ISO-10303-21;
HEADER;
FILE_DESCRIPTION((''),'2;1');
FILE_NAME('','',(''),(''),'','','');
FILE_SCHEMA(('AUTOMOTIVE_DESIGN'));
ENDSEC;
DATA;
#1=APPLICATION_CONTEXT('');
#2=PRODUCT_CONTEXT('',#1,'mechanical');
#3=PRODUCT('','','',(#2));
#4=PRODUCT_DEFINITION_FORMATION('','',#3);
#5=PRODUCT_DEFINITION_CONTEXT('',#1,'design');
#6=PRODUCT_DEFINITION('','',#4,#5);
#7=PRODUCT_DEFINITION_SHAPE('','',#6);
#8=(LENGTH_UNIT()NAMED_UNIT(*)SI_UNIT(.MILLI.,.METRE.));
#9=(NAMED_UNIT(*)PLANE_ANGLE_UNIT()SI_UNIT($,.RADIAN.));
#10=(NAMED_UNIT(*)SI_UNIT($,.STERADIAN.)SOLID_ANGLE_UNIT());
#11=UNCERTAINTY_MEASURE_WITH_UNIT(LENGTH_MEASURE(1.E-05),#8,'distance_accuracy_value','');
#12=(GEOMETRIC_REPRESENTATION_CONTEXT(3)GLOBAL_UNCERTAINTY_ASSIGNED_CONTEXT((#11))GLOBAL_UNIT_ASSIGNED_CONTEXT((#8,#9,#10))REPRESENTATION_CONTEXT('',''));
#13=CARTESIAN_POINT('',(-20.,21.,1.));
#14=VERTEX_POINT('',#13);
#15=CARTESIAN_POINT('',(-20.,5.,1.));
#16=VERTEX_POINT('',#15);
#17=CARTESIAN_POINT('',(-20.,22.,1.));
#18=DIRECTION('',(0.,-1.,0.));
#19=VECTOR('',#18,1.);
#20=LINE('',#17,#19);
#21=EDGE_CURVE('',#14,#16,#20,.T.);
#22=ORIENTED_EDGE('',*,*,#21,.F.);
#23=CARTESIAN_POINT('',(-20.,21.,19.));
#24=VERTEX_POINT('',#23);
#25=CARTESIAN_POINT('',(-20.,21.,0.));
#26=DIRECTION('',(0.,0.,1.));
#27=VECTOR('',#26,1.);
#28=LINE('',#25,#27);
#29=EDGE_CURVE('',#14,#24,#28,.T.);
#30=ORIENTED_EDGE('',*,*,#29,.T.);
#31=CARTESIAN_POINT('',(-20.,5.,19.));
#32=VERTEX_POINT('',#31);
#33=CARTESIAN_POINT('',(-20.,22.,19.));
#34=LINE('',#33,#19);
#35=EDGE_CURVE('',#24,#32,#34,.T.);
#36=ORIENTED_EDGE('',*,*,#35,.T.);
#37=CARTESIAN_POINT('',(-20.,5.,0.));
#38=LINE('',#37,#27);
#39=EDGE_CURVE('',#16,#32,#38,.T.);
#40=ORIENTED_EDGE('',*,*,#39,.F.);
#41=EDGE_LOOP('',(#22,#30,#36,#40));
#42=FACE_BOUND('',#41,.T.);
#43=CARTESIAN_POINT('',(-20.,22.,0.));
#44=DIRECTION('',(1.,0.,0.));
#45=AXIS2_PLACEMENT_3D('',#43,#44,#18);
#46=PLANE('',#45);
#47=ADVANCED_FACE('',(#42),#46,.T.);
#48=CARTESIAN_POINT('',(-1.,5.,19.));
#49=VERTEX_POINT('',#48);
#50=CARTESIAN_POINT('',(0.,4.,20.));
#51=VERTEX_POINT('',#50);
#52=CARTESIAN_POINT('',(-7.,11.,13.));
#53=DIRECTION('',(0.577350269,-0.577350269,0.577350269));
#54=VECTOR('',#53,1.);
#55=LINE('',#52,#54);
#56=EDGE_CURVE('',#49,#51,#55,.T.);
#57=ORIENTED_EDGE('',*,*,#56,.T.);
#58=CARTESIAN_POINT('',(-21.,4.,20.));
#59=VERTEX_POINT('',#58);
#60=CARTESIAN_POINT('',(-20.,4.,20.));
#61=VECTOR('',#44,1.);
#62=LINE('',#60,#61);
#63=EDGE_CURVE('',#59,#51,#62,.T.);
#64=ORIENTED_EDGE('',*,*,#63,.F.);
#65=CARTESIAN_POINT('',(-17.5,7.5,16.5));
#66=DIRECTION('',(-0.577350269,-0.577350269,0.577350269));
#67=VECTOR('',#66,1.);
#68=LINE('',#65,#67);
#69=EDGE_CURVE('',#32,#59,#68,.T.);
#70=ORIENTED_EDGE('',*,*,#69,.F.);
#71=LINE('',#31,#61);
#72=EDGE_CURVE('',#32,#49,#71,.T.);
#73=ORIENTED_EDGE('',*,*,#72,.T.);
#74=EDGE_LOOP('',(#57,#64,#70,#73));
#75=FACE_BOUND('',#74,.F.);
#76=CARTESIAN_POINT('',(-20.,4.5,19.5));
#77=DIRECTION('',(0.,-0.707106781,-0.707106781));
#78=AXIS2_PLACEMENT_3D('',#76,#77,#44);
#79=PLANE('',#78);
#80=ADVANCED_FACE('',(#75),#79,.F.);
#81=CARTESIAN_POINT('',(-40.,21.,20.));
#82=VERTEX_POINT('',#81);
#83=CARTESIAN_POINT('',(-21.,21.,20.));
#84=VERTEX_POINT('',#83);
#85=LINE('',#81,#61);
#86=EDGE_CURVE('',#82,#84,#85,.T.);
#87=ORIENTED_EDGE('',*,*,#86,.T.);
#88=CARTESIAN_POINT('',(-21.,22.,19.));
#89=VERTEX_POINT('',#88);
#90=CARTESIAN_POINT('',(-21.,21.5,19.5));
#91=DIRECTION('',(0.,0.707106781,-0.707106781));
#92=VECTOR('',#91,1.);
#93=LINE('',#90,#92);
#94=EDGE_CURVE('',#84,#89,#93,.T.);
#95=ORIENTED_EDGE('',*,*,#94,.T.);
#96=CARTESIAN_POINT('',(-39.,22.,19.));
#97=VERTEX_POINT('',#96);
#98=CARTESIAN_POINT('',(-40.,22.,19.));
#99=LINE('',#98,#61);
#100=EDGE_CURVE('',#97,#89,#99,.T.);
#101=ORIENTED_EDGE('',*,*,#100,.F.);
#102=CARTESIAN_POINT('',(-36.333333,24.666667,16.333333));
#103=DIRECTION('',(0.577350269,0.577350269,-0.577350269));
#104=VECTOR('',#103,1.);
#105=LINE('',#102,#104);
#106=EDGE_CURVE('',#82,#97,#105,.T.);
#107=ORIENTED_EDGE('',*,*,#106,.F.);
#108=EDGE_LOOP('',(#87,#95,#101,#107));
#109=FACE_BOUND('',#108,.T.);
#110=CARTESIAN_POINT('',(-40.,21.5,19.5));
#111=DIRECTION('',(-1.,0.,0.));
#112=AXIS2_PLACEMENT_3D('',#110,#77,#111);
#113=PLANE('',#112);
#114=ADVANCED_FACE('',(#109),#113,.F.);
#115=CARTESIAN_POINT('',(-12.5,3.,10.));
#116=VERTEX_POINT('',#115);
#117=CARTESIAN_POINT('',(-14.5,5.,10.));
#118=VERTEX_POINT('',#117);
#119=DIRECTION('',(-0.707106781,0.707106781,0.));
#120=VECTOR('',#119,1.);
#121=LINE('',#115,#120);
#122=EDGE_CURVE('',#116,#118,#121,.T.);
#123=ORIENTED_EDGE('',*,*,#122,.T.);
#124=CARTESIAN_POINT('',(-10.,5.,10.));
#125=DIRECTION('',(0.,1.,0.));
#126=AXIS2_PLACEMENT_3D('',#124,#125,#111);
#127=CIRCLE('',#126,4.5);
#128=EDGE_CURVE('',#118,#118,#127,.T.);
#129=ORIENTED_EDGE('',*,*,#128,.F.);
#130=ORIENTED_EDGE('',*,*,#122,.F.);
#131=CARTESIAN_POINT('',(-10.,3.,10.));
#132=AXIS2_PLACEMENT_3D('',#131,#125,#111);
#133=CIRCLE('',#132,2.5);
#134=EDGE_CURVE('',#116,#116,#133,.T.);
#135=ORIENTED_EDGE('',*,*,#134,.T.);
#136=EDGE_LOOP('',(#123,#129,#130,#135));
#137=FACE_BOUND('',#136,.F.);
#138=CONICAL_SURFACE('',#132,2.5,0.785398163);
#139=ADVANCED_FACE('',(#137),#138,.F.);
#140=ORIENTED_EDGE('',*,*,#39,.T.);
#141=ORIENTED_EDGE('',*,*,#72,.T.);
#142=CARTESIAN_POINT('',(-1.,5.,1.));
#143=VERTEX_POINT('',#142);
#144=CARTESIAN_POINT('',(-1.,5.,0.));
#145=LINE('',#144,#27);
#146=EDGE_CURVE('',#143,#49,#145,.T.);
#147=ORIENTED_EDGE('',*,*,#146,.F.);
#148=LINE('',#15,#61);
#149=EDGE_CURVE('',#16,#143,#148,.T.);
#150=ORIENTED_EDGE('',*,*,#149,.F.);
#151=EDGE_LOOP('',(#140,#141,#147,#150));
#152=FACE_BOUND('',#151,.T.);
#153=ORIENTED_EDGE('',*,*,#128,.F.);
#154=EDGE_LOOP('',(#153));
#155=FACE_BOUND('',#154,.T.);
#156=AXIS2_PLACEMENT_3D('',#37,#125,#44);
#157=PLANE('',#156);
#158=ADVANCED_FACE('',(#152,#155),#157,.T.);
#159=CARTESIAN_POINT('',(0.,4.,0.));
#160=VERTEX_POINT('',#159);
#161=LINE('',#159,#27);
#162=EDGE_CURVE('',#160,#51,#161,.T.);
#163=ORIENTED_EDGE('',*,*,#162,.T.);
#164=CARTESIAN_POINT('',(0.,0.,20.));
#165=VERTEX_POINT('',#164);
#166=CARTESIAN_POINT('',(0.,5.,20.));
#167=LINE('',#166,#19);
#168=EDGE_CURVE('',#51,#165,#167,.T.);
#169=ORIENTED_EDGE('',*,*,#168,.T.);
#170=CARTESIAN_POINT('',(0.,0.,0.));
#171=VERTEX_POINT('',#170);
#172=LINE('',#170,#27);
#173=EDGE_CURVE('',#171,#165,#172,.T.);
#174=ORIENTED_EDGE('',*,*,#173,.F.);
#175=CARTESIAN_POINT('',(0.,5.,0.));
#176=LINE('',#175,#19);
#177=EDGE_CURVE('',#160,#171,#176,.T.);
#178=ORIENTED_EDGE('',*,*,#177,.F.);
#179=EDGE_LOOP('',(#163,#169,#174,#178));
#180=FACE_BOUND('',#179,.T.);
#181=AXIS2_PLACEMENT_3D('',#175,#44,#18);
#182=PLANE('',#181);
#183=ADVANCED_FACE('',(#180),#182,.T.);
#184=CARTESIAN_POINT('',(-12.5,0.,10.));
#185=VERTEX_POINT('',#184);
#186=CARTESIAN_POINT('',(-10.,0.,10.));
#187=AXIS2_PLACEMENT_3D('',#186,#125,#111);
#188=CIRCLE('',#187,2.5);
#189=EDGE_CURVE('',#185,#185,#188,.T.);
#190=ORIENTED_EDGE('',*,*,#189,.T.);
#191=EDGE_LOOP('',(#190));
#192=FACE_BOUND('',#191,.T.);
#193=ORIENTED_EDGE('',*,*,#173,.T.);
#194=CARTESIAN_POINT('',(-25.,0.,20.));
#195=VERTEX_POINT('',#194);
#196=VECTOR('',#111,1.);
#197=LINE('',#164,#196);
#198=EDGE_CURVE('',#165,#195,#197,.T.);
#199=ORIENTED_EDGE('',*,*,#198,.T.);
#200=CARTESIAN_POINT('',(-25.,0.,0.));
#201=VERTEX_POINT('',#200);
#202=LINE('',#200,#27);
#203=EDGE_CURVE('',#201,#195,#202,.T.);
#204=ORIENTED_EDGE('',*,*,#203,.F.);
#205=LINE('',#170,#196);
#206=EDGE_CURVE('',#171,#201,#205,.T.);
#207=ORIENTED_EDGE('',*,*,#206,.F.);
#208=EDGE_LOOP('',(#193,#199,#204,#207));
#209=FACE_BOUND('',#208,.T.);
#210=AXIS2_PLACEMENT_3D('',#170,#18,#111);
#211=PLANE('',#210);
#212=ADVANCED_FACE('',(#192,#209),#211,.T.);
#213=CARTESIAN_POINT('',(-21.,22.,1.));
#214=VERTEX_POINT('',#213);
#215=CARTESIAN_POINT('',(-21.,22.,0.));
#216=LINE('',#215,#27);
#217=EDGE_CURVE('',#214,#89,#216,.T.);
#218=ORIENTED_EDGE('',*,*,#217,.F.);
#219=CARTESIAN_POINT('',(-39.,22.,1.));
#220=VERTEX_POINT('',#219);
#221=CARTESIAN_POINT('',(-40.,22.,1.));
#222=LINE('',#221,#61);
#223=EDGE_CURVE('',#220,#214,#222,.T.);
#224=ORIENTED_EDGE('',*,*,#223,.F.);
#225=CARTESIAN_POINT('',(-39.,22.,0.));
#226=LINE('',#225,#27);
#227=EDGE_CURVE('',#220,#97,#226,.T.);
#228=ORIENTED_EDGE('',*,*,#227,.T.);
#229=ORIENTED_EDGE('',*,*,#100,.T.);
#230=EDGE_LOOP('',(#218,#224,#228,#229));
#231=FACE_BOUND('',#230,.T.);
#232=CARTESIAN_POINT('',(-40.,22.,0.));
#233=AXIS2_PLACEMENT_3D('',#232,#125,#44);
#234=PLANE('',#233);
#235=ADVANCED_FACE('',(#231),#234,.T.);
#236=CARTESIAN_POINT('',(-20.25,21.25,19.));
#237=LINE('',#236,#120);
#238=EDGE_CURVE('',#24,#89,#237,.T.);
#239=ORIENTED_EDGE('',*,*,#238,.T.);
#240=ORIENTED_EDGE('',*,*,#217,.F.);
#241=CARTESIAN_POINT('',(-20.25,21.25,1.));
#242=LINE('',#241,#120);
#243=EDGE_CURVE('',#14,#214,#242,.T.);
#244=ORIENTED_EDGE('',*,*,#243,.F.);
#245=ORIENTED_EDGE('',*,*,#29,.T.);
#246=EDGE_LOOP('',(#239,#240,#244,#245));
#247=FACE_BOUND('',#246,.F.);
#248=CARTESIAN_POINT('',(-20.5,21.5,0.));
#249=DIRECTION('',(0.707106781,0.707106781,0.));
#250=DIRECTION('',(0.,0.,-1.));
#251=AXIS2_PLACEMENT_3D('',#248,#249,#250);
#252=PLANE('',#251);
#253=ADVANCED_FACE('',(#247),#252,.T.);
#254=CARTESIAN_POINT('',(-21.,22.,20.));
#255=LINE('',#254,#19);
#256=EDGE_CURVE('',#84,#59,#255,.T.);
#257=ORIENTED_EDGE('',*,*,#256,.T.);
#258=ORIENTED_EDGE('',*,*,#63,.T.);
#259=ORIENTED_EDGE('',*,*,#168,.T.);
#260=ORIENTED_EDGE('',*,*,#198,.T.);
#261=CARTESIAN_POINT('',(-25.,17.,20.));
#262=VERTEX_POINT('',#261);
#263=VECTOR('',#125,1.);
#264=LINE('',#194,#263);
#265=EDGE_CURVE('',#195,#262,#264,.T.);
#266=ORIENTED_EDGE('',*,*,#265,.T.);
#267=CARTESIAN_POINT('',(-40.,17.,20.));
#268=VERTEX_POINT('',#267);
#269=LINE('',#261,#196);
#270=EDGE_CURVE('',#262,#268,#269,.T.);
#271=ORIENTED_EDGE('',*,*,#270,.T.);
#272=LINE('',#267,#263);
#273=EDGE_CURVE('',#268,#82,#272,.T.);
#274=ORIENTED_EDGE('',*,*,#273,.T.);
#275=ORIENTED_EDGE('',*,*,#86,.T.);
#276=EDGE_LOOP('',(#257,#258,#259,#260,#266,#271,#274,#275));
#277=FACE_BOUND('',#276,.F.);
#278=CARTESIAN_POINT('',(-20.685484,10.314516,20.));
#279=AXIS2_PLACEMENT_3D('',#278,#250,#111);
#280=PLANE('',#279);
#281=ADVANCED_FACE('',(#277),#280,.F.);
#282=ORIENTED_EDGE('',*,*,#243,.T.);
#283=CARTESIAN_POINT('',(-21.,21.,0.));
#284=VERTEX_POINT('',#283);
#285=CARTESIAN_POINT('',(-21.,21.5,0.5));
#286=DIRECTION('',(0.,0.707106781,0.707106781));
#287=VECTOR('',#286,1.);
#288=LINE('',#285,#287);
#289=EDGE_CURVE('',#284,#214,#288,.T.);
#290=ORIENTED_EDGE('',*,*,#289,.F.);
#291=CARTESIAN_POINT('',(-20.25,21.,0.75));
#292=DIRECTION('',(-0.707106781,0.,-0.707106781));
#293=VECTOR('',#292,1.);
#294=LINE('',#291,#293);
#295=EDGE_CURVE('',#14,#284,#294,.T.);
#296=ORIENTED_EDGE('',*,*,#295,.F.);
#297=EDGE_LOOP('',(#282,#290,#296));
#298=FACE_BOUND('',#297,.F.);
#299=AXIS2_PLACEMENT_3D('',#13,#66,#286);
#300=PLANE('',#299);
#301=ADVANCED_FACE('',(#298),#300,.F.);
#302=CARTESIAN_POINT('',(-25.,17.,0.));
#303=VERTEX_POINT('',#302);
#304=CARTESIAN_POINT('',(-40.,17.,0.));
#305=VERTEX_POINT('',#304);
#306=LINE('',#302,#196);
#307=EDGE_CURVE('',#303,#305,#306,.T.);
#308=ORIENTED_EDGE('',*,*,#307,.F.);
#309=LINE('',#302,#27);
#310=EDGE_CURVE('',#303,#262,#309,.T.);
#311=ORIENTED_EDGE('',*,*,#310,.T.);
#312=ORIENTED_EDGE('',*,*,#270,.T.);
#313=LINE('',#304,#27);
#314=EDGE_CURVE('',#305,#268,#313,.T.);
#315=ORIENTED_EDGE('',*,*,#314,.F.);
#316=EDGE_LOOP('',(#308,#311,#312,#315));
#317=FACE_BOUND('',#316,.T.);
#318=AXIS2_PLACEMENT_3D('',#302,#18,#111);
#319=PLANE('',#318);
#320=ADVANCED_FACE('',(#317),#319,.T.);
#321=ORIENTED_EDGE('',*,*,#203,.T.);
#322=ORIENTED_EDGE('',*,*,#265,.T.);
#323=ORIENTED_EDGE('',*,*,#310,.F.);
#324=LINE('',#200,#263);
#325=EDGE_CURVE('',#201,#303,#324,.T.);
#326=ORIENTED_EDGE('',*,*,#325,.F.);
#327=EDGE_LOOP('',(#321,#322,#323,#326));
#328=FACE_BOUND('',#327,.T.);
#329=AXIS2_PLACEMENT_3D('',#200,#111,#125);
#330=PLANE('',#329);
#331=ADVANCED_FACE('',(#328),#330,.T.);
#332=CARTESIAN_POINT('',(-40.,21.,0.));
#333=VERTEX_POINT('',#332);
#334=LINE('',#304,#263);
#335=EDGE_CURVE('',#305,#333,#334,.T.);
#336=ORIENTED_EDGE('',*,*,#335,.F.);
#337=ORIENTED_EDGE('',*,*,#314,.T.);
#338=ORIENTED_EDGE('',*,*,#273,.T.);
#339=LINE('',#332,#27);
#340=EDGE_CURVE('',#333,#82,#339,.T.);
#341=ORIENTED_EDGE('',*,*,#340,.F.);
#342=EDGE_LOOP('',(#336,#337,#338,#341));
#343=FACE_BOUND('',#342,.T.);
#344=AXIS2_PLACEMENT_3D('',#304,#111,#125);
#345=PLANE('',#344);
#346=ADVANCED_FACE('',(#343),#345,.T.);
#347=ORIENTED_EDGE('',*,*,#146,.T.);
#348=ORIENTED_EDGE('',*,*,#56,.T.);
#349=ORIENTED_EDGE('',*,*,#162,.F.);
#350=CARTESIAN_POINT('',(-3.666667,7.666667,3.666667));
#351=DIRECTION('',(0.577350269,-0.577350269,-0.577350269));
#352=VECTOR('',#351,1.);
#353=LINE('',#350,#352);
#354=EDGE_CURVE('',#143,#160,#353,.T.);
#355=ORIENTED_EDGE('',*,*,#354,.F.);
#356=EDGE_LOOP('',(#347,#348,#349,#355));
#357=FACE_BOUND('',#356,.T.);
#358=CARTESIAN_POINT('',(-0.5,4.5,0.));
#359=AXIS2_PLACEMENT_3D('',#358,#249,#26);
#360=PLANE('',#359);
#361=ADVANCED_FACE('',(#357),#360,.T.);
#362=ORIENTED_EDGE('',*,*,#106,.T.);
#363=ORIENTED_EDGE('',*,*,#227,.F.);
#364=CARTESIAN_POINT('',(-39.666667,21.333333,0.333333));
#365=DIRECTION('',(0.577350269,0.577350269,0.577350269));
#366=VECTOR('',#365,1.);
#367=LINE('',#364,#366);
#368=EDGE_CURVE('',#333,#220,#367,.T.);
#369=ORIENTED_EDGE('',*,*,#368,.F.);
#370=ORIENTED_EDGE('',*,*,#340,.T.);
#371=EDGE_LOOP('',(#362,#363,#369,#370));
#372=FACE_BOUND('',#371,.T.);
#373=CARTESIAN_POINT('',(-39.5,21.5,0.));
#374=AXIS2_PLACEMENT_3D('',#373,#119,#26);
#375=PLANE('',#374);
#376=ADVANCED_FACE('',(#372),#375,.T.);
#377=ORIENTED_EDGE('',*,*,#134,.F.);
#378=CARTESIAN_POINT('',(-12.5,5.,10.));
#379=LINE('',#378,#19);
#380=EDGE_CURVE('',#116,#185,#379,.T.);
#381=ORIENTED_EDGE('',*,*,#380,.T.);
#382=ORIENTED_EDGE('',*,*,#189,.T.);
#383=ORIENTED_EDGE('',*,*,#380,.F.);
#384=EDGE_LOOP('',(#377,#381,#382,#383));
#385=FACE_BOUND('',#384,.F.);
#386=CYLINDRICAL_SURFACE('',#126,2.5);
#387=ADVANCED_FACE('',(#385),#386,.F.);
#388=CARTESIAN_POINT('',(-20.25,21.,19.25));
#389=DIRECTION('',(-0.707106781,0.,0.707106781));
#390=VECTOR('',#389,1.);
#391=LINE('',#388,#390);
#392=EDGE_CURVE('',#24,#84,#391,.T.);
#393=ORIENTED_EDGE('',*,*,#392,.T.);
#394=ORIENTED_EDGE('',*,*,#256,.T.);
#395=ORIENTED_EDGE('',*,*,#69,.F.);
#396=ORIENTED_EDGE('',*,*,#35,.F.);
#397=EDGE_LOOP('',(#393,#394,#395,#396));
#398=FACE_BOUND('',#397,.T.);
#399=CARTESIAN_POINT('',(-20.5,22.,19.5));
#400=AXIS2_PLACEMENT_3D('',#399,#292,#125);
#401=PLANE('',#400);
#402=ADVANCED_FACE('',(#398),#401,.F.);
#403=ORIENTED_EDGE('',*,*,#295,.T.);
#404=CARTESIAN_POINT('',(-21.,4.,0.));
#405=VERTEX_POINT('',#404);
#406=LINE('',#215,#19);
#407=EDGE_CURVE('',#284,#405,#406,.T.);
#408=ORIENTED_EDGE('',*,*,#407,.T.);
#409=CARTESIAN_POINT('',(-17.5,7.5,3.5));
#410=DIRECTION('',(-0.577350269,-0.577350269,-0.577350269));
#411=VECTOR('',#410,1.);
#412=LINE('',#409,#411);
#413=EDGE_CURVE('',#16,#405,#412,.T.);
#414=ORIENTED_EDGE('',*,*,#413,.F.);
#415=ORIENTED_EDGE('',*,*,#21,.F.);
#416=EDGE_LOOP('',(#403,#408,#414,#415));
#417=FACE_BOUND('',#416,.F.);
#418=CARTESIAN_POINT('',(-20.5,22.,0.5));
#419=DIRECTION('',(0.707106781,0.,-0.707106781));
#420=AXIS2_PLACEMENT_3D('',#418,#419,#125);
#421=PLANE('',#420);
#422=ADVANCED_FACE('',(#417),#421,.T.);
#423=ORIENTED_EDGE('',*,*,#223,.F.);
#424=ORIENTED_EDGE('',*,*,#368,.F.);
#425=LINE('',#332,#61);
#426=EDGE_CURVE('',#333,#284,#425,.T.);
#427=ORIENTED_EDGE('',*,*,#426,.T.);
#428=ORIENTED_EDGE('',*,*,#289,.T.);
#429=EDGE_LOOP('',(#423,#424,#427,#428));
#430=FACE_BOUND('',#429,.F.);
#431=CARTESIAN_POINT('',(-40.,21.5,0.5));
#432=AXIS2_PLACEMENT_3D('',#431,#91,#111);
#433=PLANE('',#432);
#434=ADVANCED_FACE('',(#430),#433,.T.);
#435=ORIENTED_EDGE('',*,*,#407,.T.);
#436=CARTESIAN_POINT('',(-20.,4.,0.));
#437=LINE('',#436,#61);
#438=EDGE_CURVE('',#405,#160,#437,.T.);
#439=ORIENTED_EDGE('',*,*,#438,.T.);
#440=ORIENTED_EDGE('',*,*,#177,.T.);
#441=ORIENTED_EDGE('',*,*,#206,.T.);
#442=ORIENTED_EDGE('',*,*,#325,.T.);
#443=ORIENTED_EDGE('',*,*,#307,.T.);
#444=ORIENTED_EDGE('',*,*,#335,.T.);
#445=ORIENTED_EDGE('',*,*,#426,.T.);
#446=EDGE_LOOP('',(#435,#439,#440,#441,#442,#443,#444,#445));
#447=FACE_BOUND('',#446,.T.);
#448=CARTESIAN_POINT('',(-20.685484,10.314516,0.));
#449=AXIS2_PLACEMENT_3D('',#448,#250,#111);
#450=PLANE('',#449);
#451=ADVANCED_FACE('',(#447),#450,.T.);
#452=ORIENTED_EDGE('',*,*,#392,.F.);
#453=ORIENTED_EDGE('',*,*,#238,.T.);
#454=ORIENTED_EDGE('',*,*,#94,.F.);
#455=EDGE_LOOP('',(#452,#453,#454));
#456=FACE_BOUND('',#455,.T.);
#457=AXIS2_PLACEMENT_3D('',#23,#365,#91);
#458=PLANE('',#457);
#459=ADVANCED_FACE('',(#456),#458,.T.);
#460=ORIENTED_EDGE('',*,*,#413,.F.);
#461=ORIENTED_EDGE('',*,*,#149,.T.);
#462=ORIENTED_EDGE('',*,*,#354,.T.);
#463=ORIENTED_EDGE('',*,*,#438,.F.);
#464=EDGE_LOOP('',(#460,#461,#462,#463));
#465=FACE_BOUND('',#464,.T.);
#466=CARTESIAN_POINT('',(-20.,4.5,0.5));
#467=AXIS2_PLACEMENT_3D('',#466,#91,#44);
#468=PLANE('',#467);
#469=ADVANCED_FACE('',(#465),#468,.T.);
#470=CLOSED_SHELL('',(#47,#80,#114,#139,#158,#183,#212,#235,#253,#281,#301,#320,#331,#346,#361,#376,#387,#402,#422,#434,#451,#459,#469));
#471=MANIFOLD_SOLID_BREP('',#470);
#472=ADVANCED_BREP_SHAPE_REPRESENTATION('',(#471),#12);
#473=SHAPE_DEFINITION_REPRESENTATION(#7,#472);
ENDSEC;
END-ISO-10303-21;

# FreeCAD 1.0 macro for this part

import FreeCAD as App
import Part
import Sketcher
from FreeCAD import Vector


def edges_at(feature, points):
    """Names of the edges that pass closest to the given points."""
    edges = feature.Shape.Edges
    near = lambda p: min(range(len(edges)), key=lambda i: edges[i].distToShape(Part.Vertex(*p))[0])
    return sorted({f"Edge{near(p) + 1}" for p in points})


def add_polygon(sketch, points):
    """Adds a closed chain of lines whose ends are joined by coincident constraints."""
    first, n = sketch.GeometryCount, len(points)
    for a, b in zip(points, points[1:] + points[:1]):
        sketch.addGeometry(Part.LineSegment(App.Vector(*a, 0), App.Vector(*b, 0)), False)
    for i in range(n):
        sketch.addConstraint(Sketcher.Constraint("Coincident", first + i, 2, first + (i + 1) % n, 1))

doc = App.newDocument("Part")
body = doc.addObject("PartDesign::Body", "Body")

sketch1 = body.newObject("Sketcher::SketchObject", "Sketch")
sketch1.AttachmentSupport = (doc.getObject("XY_Plane"), [""])
sketch1.MapMode = "FlatFace"
add_polygon(sketch1, [(-25, 0), (0, 0), (0, 5), (-20, 5), (-20, 22), (-40, 22), (-40, 17), (-25, 17)])
sketch1.addConstraint([
    Sketcher.Constraint("Horizontal", 0),
    Sketcher.Constraint("Vertical", 1),
    Sketcher.Constraint("Horizontal", 2),
    Sketcher.Constraint("Vertical", 3),
    Sketcher.Constraint("Horizontal", 4),
    Sketcher.Constraint("Vertical", 5),
    Sketcher.Constraint("Horizontal", 6),
    Sketcher.Constraint("Vertical", 7),
    Sketcher.Constraint("Coincident", 0, 2, -1, 1),
    Sketcher.Constraint("Equal", 2, 4),
    Sketcher.Constraint("Equal", 1, 5),
    Sketcher.Constraint("DistanceX", 0, 1, 0, 2, 25.0),
    Sketcher.Constraint("DistanceX", 2, 2, 2, 1, 20.0),
    Sketcher.Constraint("DistanceY", 1, 1, 1, 2, 5.0),
    Sketcher.Constraint("DistanceY", 3, 1, 3, 2, 17.0),
])
pad1 = body.newObject("PartDesign::Pad", "Pad")
pad1.Profile = sketch1
pad1.Length = 20

sketch2 = body.newObject("Sketcher::SketchObject", "Sketch001")
sketch2.AttachmentSupport = (doc.getObject("XZ_Plane"), [""])
sketch2.MapMode = "FlatFace"
sketch2.AttachmentOffset = App.Placement(Vector(0, 0, -5), App.Rotation())
sketch2.addGeometry(Part.Circle(Vector(-10, 10, 0), Vector(0, 0, 1), 2.5), False)
sketch2.addConstraint([
    Sketcher.Constraint("Diameter", 0, 5.0),
    Sketcher.Constraint("DistanceX", 0, 3, -1, 1, 10.0),
    Sketcher.Constraint("DistanceY", -1, 1, 0, 3, 10.0),
])
pocket1 = body.newObject("PartDesign::Pocket", "Pocket")
pocket1.Profile = sketch2
pocket1.Type = "ThroughAll"
pocket1.Reversed = True
doc.recompute()

chamfer = body.newObject("PartDesign::Chamfer", "Chamfer")
chamfer.Base = (pocket1, edges_at(pocket1, [(-7.5, 5, 10)]))
chamfer.Size = 2
doc.recompute()

chamfer2 = body.newObject("PartDesign::Chamfer", "Chamfer001")
chamfer2.Base = (chamfer, edges_at(chamfer, [
    (-10, 5, 0),
    (0, 5, 10),
    (-10, 5, 20),
    (-30, 22, 20),
    (-40, 22, 10),
    (-30, 22, 0),
    (-20, 13.5, 0),
    (-20, 13.5, 20),
    (-20, 22, 10),
]))
chamfer2.Size = 1

doc.recompute()
